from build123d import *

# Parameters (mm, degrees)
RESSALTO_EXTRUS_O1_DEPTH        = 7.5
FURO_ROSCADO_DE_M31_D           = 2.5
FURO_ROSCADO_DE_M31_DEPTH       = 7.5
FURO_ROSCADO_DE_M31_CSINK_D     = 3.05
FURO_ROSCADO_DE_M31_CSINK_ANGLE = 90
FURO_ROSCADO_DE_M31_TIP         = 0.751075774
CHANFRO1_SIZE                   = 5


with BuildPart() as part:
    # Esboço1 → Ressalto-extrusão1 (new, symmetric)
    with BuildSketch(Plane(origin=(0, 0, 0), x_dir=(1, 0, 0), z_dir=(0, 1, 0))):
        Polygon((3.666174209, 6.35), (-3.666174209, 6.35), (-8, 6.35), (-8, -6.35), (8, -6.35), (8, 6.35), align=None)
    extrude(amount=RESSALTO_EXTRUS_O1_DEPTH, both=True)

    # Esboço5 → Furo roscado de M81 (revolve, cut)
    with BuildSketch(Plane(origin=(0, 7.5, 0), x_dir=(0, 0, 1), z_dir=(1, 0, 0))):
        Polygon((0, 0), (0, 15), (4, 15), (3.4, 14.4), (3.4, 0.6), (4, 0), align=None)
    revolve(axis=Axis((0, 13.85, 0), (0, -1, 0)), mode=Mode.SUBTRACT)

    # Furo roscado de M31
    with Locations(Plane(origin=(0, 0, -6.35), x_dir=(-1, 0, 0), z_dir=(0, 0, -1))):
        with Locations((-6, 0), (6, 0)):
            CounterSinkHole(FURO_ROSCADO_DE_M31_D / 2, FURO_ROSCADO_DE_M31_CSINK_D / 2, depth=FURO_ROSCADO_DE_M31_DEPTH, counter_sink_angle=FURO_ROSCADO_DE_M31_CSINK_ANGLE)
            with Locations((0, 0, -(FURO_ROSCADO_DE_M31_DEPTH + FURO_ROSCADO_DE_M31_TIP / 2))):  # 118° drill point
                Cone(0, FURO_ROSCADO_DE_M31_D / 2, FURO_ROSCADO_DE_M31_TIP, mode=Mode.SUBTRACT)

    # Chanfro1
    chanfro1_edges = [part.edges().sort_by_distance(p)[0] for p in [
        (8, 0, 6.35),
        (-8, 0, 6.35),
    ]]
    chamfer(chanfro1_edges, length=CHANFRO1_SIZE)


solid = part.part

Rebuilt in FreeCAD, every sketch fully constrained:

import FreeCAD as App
import Part
import Sketcher


def edges_at(feature, points):
    """Names of the edges that pass closest to the given points."""
    edges = feature.Shape.Edges
    near = lambda p: min(range(len(edges)), key=lambda i: edges[i].distToShape(Part.Vertex(*p))[0])
    return sorted({f"Edge{near(p) + 1}" for p in points})

doc = App.newDocument("Part")
body = doc.addObject("PartDesign::Body", "Body")

# Sketch on XZ plane
sketch1 = body.newObject("Sketcher::SketchObject", "Sketch")
sketch1.AttachmentSupport = (doc.getObject("XZ_Plane"), [""])
sketch1.MapMode = "FlatFace"
sketch1.addGeometry([
    Part.LineSegment(App.Vector(-8, -6.35, 0), App.Vector(-8, 6.35, 0)),
    Part.LineSegment(App.Vector(-8, 6.35, 0), App.Vector(8, 6.35, 0)),
    Part.LineSegment(App.Vector(8, 6.35, 0), App.Vector(8, -6.35, 0)),
    Part.LineSegment(App.Vector(8, -6.35, 0), App.Vector(-8, -6.35, 0)),
], False)
sketch1.addConstraint([
    Sketcher.Constraint("Coincident", 0, 2, 1, 1),
    Sketcher.Constraint("Coincident", 1, 2, 2, 1),
    Sketcher.Constraint("Coincident", 2, 2, 3, 1),
    Sketcher.Constraint("Coincident", 3, 2, 0, 1),
    Sketcher.Constraint("Vertical", 0),
    Sketcher.Constraint("Horizontal", 1),
    Sketcher.Constraint("Vertical", 2),
    Sketcher.Constraint("Horizontal", 3),
    Sketcher.Constraint("Symmetric", 0, 2, 2, 2, -1, 1),
    Sketcher.Constraint("DistanceX", 1, 1, 1, 2, 16.0),
    Sketcher.Constraint("DistanceY", 0, 1, 0, 2, 12.7),
])
pad1 = body.newObject("PartDesign::Pad", "Pad")
pad1.Profile = sketch1
pad1.Length = 15
pad1.Midplane = True

# Sketch on YZ plane
sketch2 = body.newObject("Sketcher::SketchObject", "Sketch001")
sketch2.AttachmentSupport = (doc.getObject("YZ_Plane"), [""])
sketch2.MapMode = "FlatFace"
sketch2.addGeometry([
    Part.LineSegment(App.Vector(-7.5, 0, 0), App.Vector(7.5, 0, 0)),  # 0
    Part.LineSegment(App.Vector(7.5, 0, 0), App.Vector(7.5, 4, 0)),  # 1
    Part.LineSegment(App.Vector(7.5, 4, 0), App.Vector(6.9, 3.4, 0)),  # 2
    Part.LineSegment(App.Vector(6.9, 3.4, 0), App.Vector(-6.9, 3.4, 0)),  # 3
    Part.LineSegment(App.Vector(-6.9, 3.4, 0), App.Vector(-7.5, 4, 0)),  # 4
    Part.LineSegment(App.Vector(-7.5, 4, 0), App.Vector(-7.5, 0, 0)),  # 5
], False)
sketch2.addConstraint([
    Sketcher.Constraint("Coincident", 0, 2, 1, 1),
    Sketcher.Constraint("Coincident", 1, 2, 2, 1),
    Sketcher.Constraint("Coincident", 2, 2, 3, 1),
    Sketcher.Constraint("Coincident", 3, 2, 4, 1),
    Sketcher.Constraint("Coincident", 4, 2, 5, 1),
    Sketcher.Constraint("Coincident", 5, 2, 0, 1),
    Sketcher.Constraint("Horizontal", 0),
    Sketcher.Constraint("Vertical", 1),
    Sketcher.Constraint("Horizontal", 3),
    Sketcher.Constraint("Vertical", 5),
    Sketcher.Constraint("Symmetric", 0, 2, 5, 2, -1, 1),
    Sketcher.Constraint("Perpendicular", 2, 4),
    Sketcher.Constraint("Horizontal", 1, 2, 4, 2),
    Sketcher.Constraint("Equal", 2, 4),
    Sketcher.Constraint("DistanceX", 0, 1, 0, 2, 15.0),
    Sketcher.Constraint("DistanceY", 1, 1, 1, 2, 4.0),
    Sketcher.Constraint("DistanceX", 3, 2, 3, 1, 13.8),
])
groove = body.newObject("PartDesign::Groove", "Groove")
groove.Profile = sketch2
groove.ReferenceAxis = (sketch2, ["H_Axis"])
groove.Angle = 360

# Sketch on XY plane
sketch3 = body.newObject("Sketcher::SketchObject", "Sketch002")
sketch3.AttachmentSupport = (doc.getObject("XY_Plane"), [""])
sketch3.MapMode = "FlatFace"
sketch3.AttachmentOffset = App.Placement(App.Vector(0, 0, -6.35), App.Rotation())
sketch3.addGeometry([
    Part.Circle(App.Vector(6, 0, 0), App.Vector(0, 0, 1), 1.25),
    Part.Circle(App.Vector(-6, 0, 0), App.Vector(0, 0, 1), 1.25),
], False)
sketch3.addConstraint([
    Sketcher.Constraint("Equal", 0, 1),
    Sketcher.Constraint("Symmetric", 0, 3, 1, 3, -1, 1),
    Sketcher.Constraint("PointOnObject", 0, 3, -1),
    Sketcher.Constraint("Diameter", 0, 2.5),
    Sketcher.Constraint("DistanceX", -1, 1, 0, 3, 6.0),
])
doc.recompute()
hole = body.newObject("PartDesign::Hole", "Hole")
hole.Profile = sketch3
hole.ThreadType = "None"
hole.Diameter = 2.5
hole.DepthType = "Dimension"
hole.Depth = 7.5
hole.DrillPoint = "Angled"
hole.DrillPointAngle = 118
hole.HoleCutType = "Countersink"
hole.HoleCutDiameter = 3.05
hole.HoleCutCountersinkAngle = 90
hole.Reversed = True
doc.recompute()

chamfer = body.newObject("PartDesign::Chamfer", "Chamfer")
chamfer.Base = (hole, edges_at(hole, [(8, 0, 6.35), (-8, 0, 6.35)]))
chamfer.Size = 5

doc.recompute()
